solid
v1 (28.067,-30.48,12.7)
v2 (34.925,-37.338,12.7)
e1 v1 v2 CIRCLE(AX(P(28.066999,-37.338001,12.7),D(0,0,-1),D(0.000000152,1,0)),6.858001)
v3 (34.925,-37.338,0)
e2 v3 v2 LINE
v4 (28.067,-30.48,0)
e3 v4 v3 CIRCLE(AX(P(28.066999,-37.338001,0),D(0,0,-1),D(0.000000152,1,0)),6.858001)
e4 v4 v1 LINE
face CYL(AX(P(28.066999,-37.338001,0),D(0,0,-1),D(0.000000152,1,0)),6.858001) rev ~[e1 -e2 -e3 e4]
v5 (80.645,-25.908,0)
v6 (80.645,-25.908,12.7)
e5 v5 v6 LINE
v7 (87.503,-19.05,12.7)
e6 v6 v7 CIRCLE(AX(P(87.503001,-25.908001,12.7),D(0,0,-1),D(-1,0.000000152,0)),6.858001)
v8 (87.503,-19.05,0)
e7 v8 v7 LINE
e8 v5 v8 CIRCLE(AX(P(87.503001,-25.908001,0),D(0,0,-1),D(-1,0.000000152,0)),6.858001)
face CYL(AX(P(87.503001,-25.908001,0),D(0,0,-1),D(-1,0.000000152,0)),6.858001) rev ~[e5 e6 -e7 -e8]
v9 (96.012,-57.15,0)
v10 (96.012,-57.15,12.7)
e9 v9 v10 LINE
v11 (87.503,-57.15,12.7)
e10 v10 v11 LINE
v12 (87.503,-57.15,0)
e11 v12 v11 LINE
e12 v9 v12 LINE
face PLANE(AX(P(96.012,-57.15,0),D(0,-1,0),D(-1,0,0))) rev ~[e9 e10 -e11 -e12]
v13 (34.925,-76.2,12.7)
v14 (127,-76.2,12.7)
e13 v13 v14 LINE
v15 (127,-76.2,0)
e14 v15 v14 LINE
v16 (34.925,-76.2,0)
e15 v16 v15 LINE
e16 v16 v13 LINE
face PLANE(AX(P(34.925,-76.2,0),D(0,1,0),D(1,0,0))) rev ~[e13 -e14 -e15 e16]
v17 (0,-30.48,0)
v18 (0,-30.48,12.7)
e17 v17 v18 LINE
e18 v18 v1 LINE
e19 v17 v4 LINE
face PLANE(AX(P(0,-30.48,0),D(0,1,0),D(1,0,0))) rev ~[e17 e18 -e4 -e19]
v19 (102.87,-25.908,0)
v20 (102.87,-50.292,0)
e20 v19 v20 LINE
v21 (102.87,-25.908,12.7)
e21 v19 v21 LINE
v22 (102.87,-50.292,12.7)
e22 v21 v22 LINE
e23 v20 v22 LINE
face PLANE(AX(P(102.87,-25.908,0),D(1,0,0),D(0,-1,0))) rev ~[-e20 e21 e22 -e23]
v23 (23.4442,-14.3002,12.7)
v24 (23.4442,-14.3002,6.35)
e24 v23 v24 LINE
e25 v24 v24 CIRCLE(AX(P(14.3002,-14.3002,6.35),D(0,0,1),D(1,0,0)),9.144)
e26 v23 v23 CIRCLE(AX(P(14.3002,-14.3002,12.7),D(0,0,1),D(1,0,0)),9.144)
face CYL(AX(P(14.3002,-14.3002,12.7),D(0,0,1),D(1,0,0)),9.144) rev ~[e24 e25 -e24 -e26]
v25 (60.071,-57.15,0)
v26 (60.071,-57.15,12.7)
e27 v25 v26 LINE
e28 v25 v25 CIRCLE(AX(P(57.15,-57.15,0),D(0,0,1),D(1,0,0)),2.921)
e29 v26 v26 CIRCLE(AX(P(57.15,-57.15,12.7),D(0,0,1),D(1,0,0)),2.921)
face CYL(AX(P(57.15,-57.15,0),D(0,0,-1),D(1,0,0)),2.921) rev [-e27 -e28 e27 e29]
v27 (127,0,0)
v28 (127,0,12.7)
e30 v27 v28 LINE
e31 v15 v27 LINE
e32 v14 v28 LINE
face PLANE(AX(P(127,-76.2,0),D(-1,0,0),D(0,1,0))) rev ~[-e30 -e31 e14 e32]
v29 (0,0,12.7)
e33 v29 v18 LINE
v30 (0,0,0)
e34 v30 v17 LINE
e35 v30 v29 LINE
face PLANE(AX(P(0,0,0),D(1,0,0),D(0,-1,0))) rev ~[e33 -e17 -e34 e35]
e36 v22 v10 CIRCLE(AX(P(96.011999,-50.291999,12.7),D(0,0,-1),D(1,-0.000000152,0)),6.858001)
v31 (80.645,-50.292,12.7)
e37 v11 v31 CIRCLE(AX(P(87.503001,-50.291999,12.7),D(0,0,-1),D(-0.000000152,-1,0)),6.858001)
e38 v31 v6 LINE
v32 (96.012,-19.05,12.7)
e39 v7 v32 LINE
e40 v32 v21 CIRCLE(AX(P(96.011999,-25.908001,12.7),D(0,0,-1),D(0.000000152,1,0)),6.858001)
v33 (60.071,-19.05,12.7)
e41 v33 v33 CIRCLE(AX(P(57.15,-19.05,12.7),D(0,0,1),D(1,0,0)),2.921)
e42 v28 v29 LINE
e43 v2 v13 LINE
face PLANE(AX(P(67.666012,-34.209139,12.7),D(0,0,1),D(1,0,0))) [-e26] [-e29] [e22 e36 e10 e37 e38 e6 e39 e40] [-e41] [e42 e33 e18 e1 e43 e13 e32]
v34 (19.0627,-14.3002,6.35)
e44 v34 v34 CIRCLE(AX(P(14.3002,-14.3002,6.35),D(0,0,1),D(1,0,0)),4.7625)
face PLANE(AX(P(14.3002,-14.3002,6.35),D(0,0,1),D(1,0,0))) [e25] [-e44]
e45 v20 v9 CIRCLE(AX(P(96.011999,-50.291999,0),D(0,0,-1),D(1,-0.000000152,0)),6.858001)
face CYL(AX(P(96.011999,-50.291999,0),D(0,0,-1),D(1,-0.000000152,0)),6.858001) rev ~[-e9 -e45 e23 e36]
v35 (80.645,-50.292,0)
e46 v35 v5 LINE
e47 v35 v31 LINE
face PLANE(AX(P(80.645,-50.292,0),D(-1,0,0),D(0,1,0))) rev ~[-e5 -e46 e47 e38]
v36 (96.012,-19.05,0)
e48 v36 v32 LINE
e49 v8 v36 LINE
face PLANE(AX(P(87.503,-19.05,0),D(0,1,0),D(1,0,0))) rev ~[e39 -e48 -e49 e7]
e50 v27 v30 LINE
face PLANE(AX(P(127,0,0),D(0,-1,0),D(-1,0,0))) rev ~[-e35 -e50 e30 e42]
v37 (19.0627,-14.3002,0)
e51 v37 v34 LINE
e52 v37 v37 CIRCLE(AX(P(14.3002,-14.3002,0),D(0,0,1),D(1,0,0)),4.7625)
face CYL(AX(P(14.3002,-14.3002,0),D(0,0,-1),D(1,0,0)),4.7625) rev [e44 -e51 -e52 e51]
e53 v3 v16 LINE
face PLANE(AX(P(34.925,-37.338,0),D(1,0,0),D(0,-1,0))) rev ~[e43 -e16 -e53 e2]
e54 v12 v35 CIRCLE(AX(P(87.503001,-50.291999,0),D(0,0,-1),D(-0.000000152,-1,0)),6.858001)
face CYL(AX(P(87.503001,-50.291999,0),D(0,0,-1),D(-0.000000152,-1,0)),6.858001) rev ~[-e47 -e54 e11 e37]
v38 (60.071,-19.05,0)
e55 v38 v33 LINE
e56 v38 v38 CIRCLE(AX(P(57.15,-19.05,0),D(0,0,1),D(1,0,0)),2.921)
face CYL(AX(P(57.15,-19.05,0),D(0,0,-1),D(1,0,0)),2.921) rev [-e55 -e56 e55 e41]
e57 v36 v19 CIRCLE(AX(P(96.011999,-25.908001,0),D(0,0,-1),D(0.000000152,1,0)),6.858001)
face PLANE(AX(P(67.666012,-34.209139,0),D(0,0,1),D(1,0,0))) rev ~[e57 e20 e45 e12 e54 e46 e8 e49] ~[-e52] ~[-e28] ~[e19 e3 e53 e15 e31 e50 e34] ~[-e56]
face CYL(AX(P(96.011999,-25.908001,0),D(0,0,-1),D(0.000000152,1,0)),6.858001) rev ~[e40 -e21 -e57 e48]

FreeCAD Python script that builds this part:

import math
import FreeCAD as App
import Part
import Sketcher

V = App.Vector
Q = App.Units.Quantity

doc = App.newDocument("Part")
params = doc.addObject("Spreadsheet::Sheet", "Params")
for row, (alias, value) in enumerate([
    ("sketch1_diameter", "0.23 in"),
    ("sketch1_width", "5 in"),
    ("sketch1_height", "3 in"),
    ("sketch1_radius", "0.27 in"),
    ("sketch1_diameter2", "0.375 in"),
    ("pad1_length", "0.5 in"),
    ("sketch2_diameter", "0.72 in"),
    ("sketch2_diameter2", "0.375 in"),
    ("pocket1_length", "0.25 in"),
], start=1):
    params.set(f"A{row}", alias)
    params.set(f"B{row}", "=" + value)
    params.setAlias(f"B{row}", alias)

body = doc.addObject("PartDesign::Body", "Body")

# Sketch on XY plane
sketch1 = body.newObject("Sketcher::SketchObject", "Sketch")
sketch1.AttachmentSupport = (doc.getObject("XY_Plane"), [""])
sketch1.MapMode = "FlatFace"
sketch1.addGeometry(Part.LineSegment(V(127, 0, 0), V(0, 0, 0)), False)
sketch1.addGeometry(Part.LineSegment(V(0, 0, 0), V(0, -30.5, 0)), False)
sketch1.addGeometry(Part.LineSegment(V(0, -30.5, 0), V(28.1, -30.5, 0)), False)
sketch1.addGeometry(Part.ArcOfCircle(Part.Circle(V(28.1, -37.3, 0), V(0, 0, 1), 6.9), math.radians(0), math.radians(90)), False)
sketch1.addGeometry(Part.LineSegment(V(34.9, -37.3, 0), V(34.9, -76.2, 0)), False)
sketch1.addGeometry(Part.LineSegment(V(34.9, -76.2, 0), V(127, -76.2, 0)), False)
sketch1.addGeometry(Part.LineSegment(V(127, -76.2, 0), V(127, 0, 0)), False)
sketch1.addGeometry(Part.Circle(V(57.1, -57.1, 0), V(0, 0, 1), 2.9), False)
sketch1.addGeometry(Part.LineSegment(V(102.9, -25.9, 0), V(102.9, -50.3, 0)), False)
sketch1.addGeometry(Part.ArcOfCircle(Part.Circle(V(96, -50.3, 0), V(0, 0, 1), 6.9), math.radians(-90), math.radians(0)), False)
sketch1.addGeometry(Part.LineSegment(V(96, -57.1, 0), V(87.5, -57.1, 0)), False)
sketch1.addGeometry(Part.ArcOfCircle(Part.Circle(V(87.5, -50.3, 0), V(0, 0, 1), 6.9), math.radians(-180), math.radians(-90)), False)
sketch1.addGeometry(Part.LineSegment(V(80.6, -50.3, 0), V(80.6, -25.9, 0)), False)
sketch1.addGeometry(Part.ArcOfCircle(Part.Circle(V(87.5, -25.9, 0), V(0, 0, 1), 6.9), math.radians(90), math.radians(180)), False)
sketch1.addGeometry(Part.LineSegment(V(87.5, -19.1, 0), V(96, -19.1, 0)), False)
sketch1.addGeometry(Part.ArcOfCircle(Part.Circle(V(96, -25.9, 0), V(0, 0, 1), 6.9), math.radians(0), math.radians(90)), False)
sketch1.addGeometry(Part.Circle(V(14.3, -14.3, 0), V(0, 0, 1), 4.8), False)
sketch1.addGeometry(Part.Circle(V(57.1, -19.1, 0), V(0, 0, 1), 2.9), False)
sketch1.addConstraint(Sketcher.Constraint("Coincident", 0, 2, 1, 1))
sketch1.addConstraint(Sketcher.Constraint("Coincident", 1, 2, 2, 1))
sketch1.addConstraint(Sketcher.Constraint("Tangent", 2, 2, 3, 2))
sketch1.addConstraint(Sketcher.Constraint("Tangent", 3, 1, 4, 1))
sketch1.addConstraint(Sketcher.Constraint("Coincident", 4, 2, 5, 1))
sketch1.addConstraint(Sketcher.Constraint("Coincident", 5, 2, 6, 1))
sketch1.addConstraint(Sketcher.Constraint("Coincident", 6, 2, 0, 1))
sketch1.addConstraint(Sketcher.Constraint("Tangent", 8, 2, 9, 2))
sketch1.addConstraint(Sketcher.Constraint("Tangent", 9, 1, 10, 1))
sketch1.addConstraint(Sketcher.Constraint("Tangent", 10, 2, 11, 2))
sketch1.addConstraint(Sketcher.Constraint("Tangent", 11, 1, 12, 1))
sketch1.addConstraint(Sketcher.Constraint("Tangent", 12, 2, 13, 2))
sketch1.addConstraint(Sketcher.Constraint("Tangent", 13, 1, 14, 1))
sketch1.addConstraint(Sketcher.Constraint("Tangent", 14, 2, 15, 2))
sketch1.addConstraint(Sketcher.Constraint("Tangent", 15, 1, 8, 1))
sketch1.addConstraint(Sketcher.Constraint("Horizontal", 0))
sketch1.addConstraint(Sketcher.Constraint("Vertical", 1))
sketch1.addConstraint(Sketcher.Constraint("Horizontal", 2))
sketch1.addConstraint(Sketcher.Constraint("Vertical", 4))
sketch1.addConstraint(Sketcher.Constraint("Horizontal", 5))
sketch1.addConstraint(Sketcher.Constraint("Vertical", 6))
sketch1.addConstraint(Sketcher.Constraint("Vertical", 8))
sketch1.addConstraint(Sketcher.Constraint("Horizontal", 10))
sketch1.addConstraint(Sketcher.Constraint("Vertical", 12))
sketch1.addConstraint(Sketcher.Constraint("Horizontal", 14))
sketch1.addConstraint(Sketcher.Constraint("Coincident", 0, 2, -1, 1))
sketch1.addConstraint(Sketcher.Constraint("Equal", 3, 9))
sketch1.addConstraint(Sketcher.Constraint("Equal", 9, 11))
sketch1.addConstraint(Sketcher.Constraint("Equal", 11, 13))
sketch1.addConstraint(Sketcher.Constraint("Equal", 13, 15))
sketch1.addConstraint(Sketcher.Constraint("Equal", 7, 17))
sketch1.addConstraint(Sketcher.Constraint("Horizontal", 7, 3, 9, 1))
sketch1.addConstraint(Sketcher.Constraint("Horizontal", 17, 3, 13, 1))
sketch1.addConstraint(Sketcher.Constraint("Vertical", 7, 3, 17, 3))
sketch1.addConstraint(Sketcher.Constraint("Diameter", 7, Q("0.23 in")))
sketch1.addConstraint(Sketcher.Constraint("DistanceX", 0, 2, 0, 1, Q("5 in")))
sketch1.addConstraint(Sketcher.Constraint("DistanceY", 6, 1, 6, 2, Q("3 in")))
sketch1.addConstraint(Sketcher.Constraint("Radius", 3, Q("0.27 in")))
sketch1.addConstraint(Sketcher.Constraint("Diameter", 16, Q("0.375 in")))
sketch1.addConstraint(Sketcher.Constraint("DistanceY", 1, 2, 1, 1, Q("1.2 in")))
sketch1.addConstraint(Sketcher.Constraint("DistanceY", 8, 2, 8, 1, Q("0.96 in")))
sketch1.addConstraint(Sketcher.Constraint("DistanceX", 2, 1, 2, 2, Q("1.105 in")))
sketch1.addConstraint(Sketcher.Constraint("DistanceX", 10, 2, 10, 1, Q("0.335 in")))
sketch1.addConstraint(Sketcher.Constraint("DistanceX", -1, 1, 7, 3, Q("2.25 in")))
sketch1.addConstraint(Sketcher.Constraint("DistanceY", 7, 3, -1, 1, Q("2.25 in")))
sketch1.addConstraint(Sketcher.Constraint("DistanceX", -1, 1, 9, 3, Q("3.78 in")))
sketch1.addConstraint(Sketcher.Constraint("DistanceX", -1, 1, 16, 3, Q("0.563 in")))
sketch1.addConstraint(Sketcher.Constraint("DistanceY", 16, 3, -1, 1, Q("0.563 in")))
sketch1.setExpression("Constraints[34]", "Params.sketch1_diameter")
sketch1.setExpression("Constraints[35]", "Params.sketch1_width")
sketch1.setExpression("Constraints[36]", "Params.sketch1_height")
sketch1.setExpression("Constraints[37]", "Params.sketch1_radius")
sketch1.setExpression("Constraints[38]", "Params.sketch1_diameter2")
pad1 = body.newObject("PartDesign::Pad", "Pad")
pad1.Profile = sketch1
pad1.setExpression("Length", "Params.pad1_length")

# Sketch on XY plane
sketch2 = body.newObject("Sketcher::SketchObject", "Sketch001")
sketch2.AttachmentSupport = (doc.getObject("XY_Plane"), [""])
sketch2.MapMode = "FlatFace"
sketch2.AttachmentOffset = App.Placement(V(0, 0, 0.5 * 25.4), App.Rotation())
sketch2.addGeometry(Part.Circle(V(14.3, -14.3, 0), V(0, 0, 1), 9.1), False)
sketch2.addGeometry(Part.Circle(V(14.3, -14.3, 0), V(0, 0, 1), 4.8), False)
sketch2.addConstraint(Sketcher.Constraint("Coincident", 1, 3, 0, 3))
sketch2.addConstraint(Sketcher.Constraint("Diameter", 0, Q("0.72 in")))
sketch2.addConstraint(Sketcher.Constraint("Diameter", 1, Q("0.375 in")))
sketch2.addConstraint(Sketcher.Constraint("DistanceX", -1, 1, 0, 3, Q("0.563 in")))
sketch2.addConstraint(Sketcher.Constraint("DistanceY", 0, 3, -1, 1, Q("0.563 in")))
sketch2.setExpression("Constraints[1]", "Params.sketch2_diameter")
sketch2.setExpression("Constraints[2]", "Params.sketch2_diameter2")
pocket1 = body.newObject("PartDesign::Pocket", "Pocket")
pocket1.Profile = sketch2
pocket1.setExpression("Length", "Params.pocket1_length")

doc.recompute()
